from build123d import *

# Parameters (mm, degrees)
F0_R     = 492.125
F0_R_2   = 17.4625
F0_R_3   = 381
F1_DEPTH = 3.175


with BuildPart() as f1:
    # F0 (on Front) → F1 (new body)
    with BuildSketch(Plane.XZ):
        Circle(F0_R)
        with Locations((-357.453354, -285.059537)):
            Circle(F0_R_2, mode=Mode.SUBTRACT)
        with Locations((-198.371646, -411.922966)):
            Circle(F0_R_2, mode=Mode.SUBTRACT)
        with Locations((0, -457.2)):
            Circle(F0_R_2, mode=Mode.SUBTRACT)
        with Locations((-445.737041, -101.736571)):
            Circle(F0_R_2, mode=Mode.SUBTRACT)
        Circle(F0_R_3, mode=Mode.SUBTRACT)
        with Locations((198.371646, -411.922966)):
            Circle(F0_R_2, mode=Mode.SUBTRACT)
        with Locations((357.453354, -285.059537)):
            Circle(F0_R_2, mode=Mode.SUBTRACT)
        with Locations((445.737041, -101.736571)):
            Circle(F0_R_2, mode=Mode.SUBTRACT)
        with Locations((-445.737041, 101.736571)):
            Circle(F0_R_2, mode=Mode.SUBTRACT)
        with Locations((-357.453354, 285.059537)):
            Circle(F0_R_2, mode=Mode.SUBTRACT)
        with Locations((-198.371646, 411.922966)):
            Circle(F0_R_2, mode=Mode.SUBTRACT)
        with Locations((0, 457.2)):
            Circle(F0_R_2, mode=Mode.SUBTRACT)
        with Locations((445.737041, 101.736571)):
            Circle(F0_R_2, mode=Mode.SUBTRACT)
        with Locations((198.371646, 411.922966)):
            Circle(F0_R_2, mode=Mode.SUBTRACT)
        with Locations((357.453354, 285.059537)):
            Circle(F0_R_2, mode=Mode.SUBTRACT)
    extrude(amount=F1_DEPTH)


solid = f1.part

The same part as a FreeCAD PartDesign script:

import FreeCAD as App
import Part
import Sketcher

V = App.Vector
Q = App.Units.Quantity

doc = App.newDocument("Part")
params = doc.addObject("Spreadsheet::Sheet", "Params")
for row, (alias, value) in enumerate([
    ("sketch1_diameter", "30 in"),
    ("sketch1_diameter2", "38.75 in"),
    ("sketch1_diameter3", "1.375 in"),
    ("pad1_length", "0.125 in"),
], start=1):
    params.set(f"A{row}", alias)
    params.set(f"B{row}", "=" + value)
    params.setAlias(f"B{row}", alias)

body = doc.addObject("PartDesign::Body", "Body")

sketch1 = body.newObject("Sketcher::SketchObject", "Sketch")
sketch1.AttachmentSupport = (doc.getObject("XZ_Plane"), [""])
sketch1.MapMode = "FlatFace"
sketch1.addGeometry([
    Part.Circle(V(0, 0, 0), V(0, 0, 1), 492.125),
    Part.Circle(V(-357.453354, -285.059537, 0), V(0, 0, 1), 17.4625),
    Part.Circle(V(-198.371646, -411.922966, 0), V(0, 0, 1), 17.4625),
    Part.Circle(V(-445.737041, -101.736571, 0), V(0, 0, 1), 17.4625),
    Part.Circle(V(0, -457.2, 0), V(0, 0, 1), 17.4625),
    Part.Circle(V(198.371646, -411.922966, 0), V(0, 0, 1), 17.4625),
    Part.Circle(V(357.453354, -285.059537, 0), V(0, 0, 1), 17.4625),
    Part.Circle(V(0, 0, 0), V(0, 0, 1), 381),
    Part.Circle(V(445.737041, -101.736571, 0), V(0, 0, 1), 17.4625),
    Part.Circle(V(-445.737041, 101.736571, 0), V(0, 0, 1), 17.4625),
    Part.Circle(V(-357.453354, 285.059537, 0), V(0, 0, 1), 17.4625),
    Part.Circle(V(-198.371646, 411.922966, 0), V(0, 0, 1), 17.4625),
    Part.Circle(V(445.737041, 101.736571, 0), V(0, 0, 1), 17.4625),
    Part.Circle(V(0, 457.2, 0), V(0, 0, 1), 17.4625),
    Part.Circle(V(198.371646, 411.922966, 0), V(0, 0, 1), 17.4625),
    Part.Circle(V(357.453354, 285.059537, 0), V(0, 0, 1), 17.4625),
], False)
sketch1.addConstraint([
    Sketcher.Constraint("Coincident", 0, 3, -1, 1),
    Sketcher.Constraint("Coincident", 7, 3, -1, 1),
    Sketcher.Constraint("Equal", 1, 2),
    Sketcher.Constraint("Equal", 2, 3),
    Sketcher.Constraint("Equal", 3, 4),
    Sketcher.Constraint("Equal", 4, 5),
    Sketcher.Constraint("Equal", 5, 6),
    Sketcher.Constraint("Equal", 6, 8),
    Sketcher.Constraint("Equal", 8, 9),
    Sketcher.Constraint("Equal", 9, 10),
    Sketcher.Constraint("Equal", 10, 11),
    Sketcher.Constraint("Equal", 11, 12),
    Sketcher.Constraint("Equal", 12, 13),
    Sketcher.Constraint("Equal", 13, 14),
    Sketcher.Constraint("Equal", 14, 15),
    Sketcher.Constraint("Symmetric", 8, 3, 9, 3, -1, 1),
    Sketcher.Constraint("Symmetric", 6, 3, 10, 3, -1, 1),
    Sketcher.Constraint("Symmetric", 5, 3, 11, 3, -1, 1),
    Sketcher.Constraint("Symmetric", 3, 3, 12, 3, -1, 1),
    Sketcher.Constraint("Symmetric", 4, 3, 13, 3, -1, 1),
    Sketcher.Constraint("Symmetric", 2, 3, 14, 3, -1, 1),
    Sketcher.Constraint("Symmetric", 1, 3, 15, 3, -1, 1),
    Sketcher.Constraint("Symmetric", 2, 3, 5, 3, -2),
    Sketcher.Constraint("Symmetric", 1, 3, 6, 3, -2),
    Sketcher.Constraint("Symmetric", 3, 3, 8, 3, -2),
    Sketcher.Constraint("PointOnObject", 4, 3, -2),
    Sketcher.Constraint("Diameter", 7, Q("30 in")),
    Sketcher.Constraint("Diameter", 0, Q("38.75 in")),
    Sketcher.Constraint("Diameter", 1, Q("1.375 in")),
    Sketcher.Constraint("DistanceY", 4, 3, -1, 1, Q("18 in")),
    Sketcher.Constraint("DistanceX", 1, 3, 5, 3, 555.825),
    Sketcher.Constraint("DistanceX", 3, 3, -1, 1, 445.737041),
    Sketcher.Constraint("DistanceY", 3, 3, -1, 1, 101.736571),
    Sketcher.Constraint("DistanceX", 1, 3, 2, 3, 159.081708),
    Sketcher.Constraint("DistanceY", 2, 3, 1, 3, 126.863429),
    Sketcher.Constraint("DistanceY", 1, 3, 9, 3, 386.796108),
])
sketch1.setExpression("Constraints[26]", "Params.sketch1_diameter")
sketch1.setExpression("Constraints[27]", "Params.sketch1_diameter2")
sketch1.setExpression("Constraints[28]", "Params.sketch1_diameter3")
pad1 = body.newObject("PartDesign::Pad", "Pad")
pad1.Profile = sketch1
pad1.setExpression("Length", "Params.pad1_length")

doc.recompute()
